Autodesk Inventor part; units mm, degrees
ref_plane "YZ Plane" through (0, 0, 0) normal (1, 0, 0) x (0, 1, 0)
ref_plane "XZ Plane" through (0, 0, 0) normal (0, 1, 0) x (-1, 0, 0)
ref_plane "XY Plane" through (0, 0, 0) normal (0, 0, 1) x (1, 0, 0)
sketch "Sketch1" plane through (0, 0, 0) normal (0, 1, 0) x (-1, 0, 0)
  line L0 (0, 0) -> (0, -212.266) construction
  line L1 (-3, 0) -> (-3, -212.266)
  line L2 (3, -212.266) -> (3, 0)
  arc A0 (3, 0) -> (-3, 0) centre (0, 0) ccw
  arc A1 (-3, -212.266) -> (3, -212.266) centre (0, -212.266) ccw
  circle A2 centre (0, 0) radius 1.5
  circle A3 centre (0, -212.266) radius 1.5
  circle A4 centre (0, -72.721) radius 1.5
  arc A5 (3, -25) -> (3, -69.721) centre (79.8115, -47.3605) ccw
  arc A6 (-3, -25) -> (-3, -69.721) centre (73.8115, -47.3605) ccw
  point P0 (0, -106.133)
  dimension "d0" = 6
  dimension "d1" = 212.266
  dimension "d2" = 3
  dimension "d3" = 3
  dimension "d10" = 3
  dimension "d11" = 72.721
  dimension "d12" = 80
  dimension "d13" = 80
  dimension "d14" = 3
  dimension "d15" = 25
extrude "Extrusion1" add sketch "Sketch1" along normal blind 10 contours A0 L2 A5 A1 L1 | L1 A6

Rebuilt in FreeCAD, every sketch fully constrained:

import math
import FreeCAD as App
import Part
import Sketcher

doc = App.newDocument("Part")
body = doc.addObject("PartDesign::Body", "Body")

# Sketch on XZ plane
sketch1 = doc.addObject("Sketcher::SketchObject", "Sketch")
body.addObject(sketch1)
sketch1.AttachmentSupport = (doc.XZ_Plane, [""])
sketch1.MapMode = "FlatFace"
sketch1.addGeometry(Part.ArcOfCircle(Part.Circle(App.Vector(0, 0, 0), App.Vector(0, 0, 1), 3), math.radians(0), math.radians(180)), False)
sketch1.addGeometry(Part.LineSegment(App.Vector(3, 0, 0), App.Vector(3, -25, 0)), False)
sketch1.addGeometry(Part.ArcOfCircle(Part.Circle(App.Vector(-73.8, -47.4, 0), App.Vector(0, 0, 1), 80), math.radians(-16), math.radians(16)), False)
sketch1.addGeometry(Part.LineSegment(App.Vector(3, -69.7, 0), App.Vector(3, -212.3, 0)), False)
sketch1.addGeometry(Part.ArcOfCircle(Part.Circle(App.Vector(0, -212.3, 0), App.Vector(0, 0, 1), 3), math.radians(180), math.radians(360)), False)
sketch1.addGeometry(Part.LineSegment(App.Vector(-3, -212.3, 0), App.Vector(-3, -69.7, 0)), False)
sketch1.addGeometry(Part.ArcOfCircle(Part.Circle(App.Vector(-79.8, -47.4, 0), App.Vector(0, 0, 1), 80), math.radians(-16), math.radians(16)), False)
sketch1.addGeometry(Part.LineSegment(App.Vector(-3, -25, 0), App.Vector(-3, 0, 0)), False)
sketch1.addGeometry(Part.Circle(App.Vector(0, -212.3, 0), App.Vector(0, 0, 1), 1.5), False)
sketch1.addGeometry(Part.Circle(App.Vector(0, -72.7, 0), App.Vector(0, 0, 1), 1.5), False)
sketch1.addGeometry(Part.Circle(App.Vector(0, 0, 0), App.Vector(0, 0, 1), 1.5), False)
sketch1.addConstraint(Sketcher.Constraint("Tangent", 0, 1, 1, 1))
sketch1.addConstraint(Sketcher.Constraint("Coincident", 1, 2, 2, 2))
sketch1.addConstraint(Sketcher.Constraint("Coincident", 2, 1, 3, 1))
sketch1.addConstraint(Sketcher.Constraint("Tangent", 3, 2, 4, 2))
sketch1.addConstraint(Sketcher.Constraint("Tangent", 4, 1, 5, 1))
sketch1.addConstraint(Sketcher.Constraint("Coincident", 5, 2, 6, 1))
sketch1.addConstraint(Sketcher.Constraint("Coincident", 6, 2, 7, 1))
sketch1.addConstraint(Sketcher.Constraint("Tangent", 7, 2, 0, 2))
sketch1.addConstraint(Sketcher.Constraint("Vertical", 1))
sketch1.addConstraint(Sketcher.Constraint("Vertical", 3))
sketch1.addConstraint(Sketcher.Constraint("Vertical", 5))
sketch1.addConstraint(Sketcher.Constraint("Vertical", 7))
sketch1.addConstraint(Sketcher.Constraint("Coincident", 0, 3, -1, 1))
sketch1.addConstraint(Sketcher.Constraint("Coincident", 10, 3, -1, 1))
sketch1.addConstraint(Sketcher.Constraint("Coincident", 8, 3, 4, 3))
sketch1.addConstraint(Sketcher.Constraint("Equal", 0, 4))
sketch1.addConstraint(Sketcher.Constraint("Equal", 2, 6))
sketch1.addConstraint(Sketcher.Constraint("Equal", 8, 9))
sketch1.addConstraint(Sketcher.Constraint("Equal", 9, 10))
sketch1.addConstraint(Sketcher.Constraint("Symmetric", 2, 1, 5, 2, -2))
sketch1.addConstraint(Sketcher.Constraint("PointOnObject", 9, 3, -2))
sketch1.addConstraint(Sketcher.Constraint("Horizontal", 2, 3, 6, 3))
sketch1.addConstraint(Sketcher.Constraint("Diameter", 8, 3.0))
sketch1.addConstraint(Sketcher.Constraint("Radius", 0, 3.0))
sketch1.addConstraint(Sketcher.Constraint("Radius", 2, 80.0))
sketch1.addConstraint(Sketcher.Constraint("DistanceY", 1, 2, 1, 1, 25.0))
sketch1.addConstraint(Sketcher.Constraint("DistanceY", 9, 3, 2, 1, 3.0))
sketch1.addConstraint(Sketcher.Constraint("DistanceY", 4, 3, -1, 1, 212.266))
sketch1.addConstraint(Sketcher.Constraint("DistanceY", 9, 3, -1, 1, 72.721))
pad1 = doc.addObject("PartDesign::Pad", "Pad")
body.addObject(pad1)
pad1.Profile = sketch1
pad1.Length = 10
pad1.Reversed = True

doc.recompute()
